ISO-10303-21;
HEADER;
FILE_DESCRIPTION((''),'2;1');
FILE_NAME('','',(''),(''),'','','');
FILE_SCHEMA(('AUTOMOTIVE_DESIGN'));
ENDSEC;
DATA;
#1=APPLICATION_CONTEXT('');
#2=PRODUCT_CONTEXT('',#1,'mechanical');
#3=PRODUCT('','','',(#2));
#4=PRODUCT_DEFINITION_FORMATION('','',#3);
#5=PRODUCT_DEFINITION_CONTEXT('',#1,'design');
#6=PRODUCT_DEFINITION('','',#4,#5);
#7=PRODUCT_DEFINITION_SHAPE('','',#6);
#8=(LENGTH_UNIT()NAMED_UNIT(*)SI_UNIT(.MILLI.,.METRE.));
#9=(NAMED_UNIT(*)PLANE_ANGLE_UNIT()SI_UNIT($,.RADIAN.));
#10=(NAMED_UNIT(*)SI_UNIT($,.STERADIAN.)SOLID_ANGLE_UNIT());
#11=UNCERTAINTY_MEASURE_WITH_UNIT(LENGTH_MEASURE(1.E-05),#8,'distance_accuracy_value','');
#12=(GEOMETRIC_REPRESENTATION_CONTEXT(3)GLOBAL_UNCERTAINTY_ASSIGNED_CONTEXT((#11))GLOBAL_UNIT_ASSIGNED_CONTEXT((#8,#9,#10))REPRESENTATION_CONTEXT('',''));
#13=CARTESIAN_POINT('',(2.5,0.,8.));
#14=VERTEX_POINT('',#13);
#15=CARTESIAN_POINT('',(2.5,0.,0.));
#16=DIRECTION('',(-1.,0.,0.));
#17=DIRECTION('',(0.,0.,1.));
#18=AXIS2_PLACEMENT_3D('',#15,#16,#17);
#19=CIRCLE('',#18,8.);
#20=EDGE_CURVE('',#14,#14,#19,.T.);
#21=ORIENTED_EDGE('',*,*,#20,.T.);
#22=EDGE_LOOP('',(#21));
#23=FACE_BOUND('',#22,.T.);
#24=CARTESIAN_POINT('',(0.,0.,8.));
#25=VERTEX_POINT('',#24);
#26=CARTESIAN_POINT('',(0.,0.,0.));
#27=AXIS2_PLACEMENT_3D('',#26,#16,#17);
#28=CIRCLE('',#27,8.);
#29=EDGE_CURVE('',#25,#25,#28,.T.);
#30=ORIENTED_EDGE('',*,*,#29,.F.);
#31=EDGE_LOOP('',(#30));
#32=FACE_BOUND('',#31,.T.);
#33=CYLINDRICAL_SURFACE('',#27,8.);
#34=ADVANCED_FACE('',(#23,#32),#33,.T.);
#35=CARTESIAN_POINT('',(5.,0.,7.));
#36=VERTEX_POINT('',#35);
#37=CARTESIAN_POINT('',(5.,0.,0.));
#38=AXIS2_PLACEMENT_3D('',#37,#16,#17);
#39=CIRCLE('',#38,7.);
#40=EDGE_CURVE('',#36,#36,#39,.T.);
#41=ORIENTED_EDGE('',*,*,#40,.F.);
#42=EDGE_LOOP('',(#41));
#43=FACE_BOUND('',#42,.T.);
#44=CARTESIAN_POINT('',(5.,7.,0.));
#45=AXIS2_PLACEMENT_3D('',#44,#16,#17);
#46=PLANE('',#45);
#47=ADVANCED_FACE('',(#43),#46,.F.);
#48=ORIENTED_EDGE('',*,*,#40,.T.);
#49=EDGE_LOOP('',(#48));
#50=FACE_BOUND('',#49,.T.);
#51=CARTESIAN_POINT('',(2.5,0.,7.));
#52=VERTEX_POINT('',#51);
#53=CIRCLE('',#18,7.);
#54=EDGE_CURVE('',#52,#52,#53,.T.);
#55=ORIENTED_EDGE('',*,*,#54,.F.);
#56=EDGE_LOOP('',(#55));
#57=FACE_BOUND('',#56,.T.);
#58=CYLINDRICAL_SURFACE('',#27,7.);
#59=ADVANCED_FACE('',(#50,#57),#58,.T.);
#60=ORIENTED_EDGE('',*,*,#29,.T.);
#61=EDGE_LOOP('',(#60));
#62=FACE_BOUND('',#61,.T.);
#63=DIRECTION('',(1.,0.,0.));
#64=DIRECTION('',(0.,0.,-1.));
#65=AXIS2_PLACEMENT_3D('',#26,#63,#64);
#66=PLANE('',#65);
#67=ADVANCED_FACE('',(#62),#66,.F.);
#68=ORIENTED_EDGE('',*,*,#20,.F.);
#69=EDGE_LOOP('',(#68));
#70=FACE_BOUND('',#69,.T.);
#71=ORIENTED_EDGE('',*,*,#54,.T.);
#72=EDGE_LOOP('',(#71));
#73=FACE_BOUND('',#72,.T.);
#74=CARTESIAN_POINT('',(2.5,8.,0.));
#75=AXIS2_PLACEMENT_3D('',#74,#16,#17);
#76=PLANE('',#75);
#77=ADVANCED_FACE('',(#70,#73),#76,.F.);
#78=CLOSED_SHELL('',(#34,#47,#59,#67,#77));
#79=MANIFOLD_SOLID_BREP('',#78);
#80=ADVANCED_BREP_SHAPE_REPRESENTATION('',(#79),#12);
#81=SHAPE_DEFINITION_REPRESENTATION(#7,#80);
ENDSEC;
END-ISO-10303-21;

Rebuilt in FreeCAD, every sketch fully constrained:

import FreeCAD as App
import Part
import Sketcher
Q = App.Units.Quantity


def add_polygon(sketch, points):
    """Adds a closed chain of lines whose ends are joined by coincident constraints."""
    first, n = sketch.GeometryCount, len(points)
    for a, b in zip(points, points[1:] + points[:1]):
        sketch.addGeometry(Part.LineSegment(App.Vector(*a, 0), App.Vector(*b, 0)), False)
    for i in range(n):
        sketch.addConstraint(Sketcher.Constraint("Coincident", first + i, 2, first + (i + 1) % n, 1))

doc = App.newDocument("Part")
body = doc.addObject("PartDesign::Body", "Body")

# Sketch on XY plane
sketch1 = body.newObject("Sketcher::SketchObject", "Sketch")
sketch1.AttachmentSupport = (doc.getObject("XY_Plane"), [""])
sketch1.MapMode = "FlatFace"
add_polygon(sketch1, [(0, 8), (0, 0), (5, 0), (5, 7), (2.5, 7), (2.5, 8)])  # lines 0-5
sketch1.addConstraint(Sketcher.Constraint("Vertical", 0))
sketch1.addConstraint(Sketcher.Constraint("Horizontal", 1))
sketch1.addConstraint(Sketcher.Constraint("Vertical", 2))
sketch1.addConstraint(Sketcher.Constraint("Horizontal", 3))
sketch1.addConstraint(Sketcher.Constraint("Vertical", 4))
sketch1.addConstraint(Sketcher.Constraint("Horizontal", 5))
sketch1.addConstraint(Sketcher.Constraint("Coincident", 0, 2, -1, 1))
sketch1.addConstraint(Sketcher.Constraint("Equal", 3, 5))
sketch1.addConstraint(Sketcher.Constraint("DistanceX", 1, 1, 1, 2, Q("5 mm")))
sketch1.addConstraint(Sketcher.Constraint("DistanceY", 0, 2, 0, 1, Q("8 mm")))
sketch1.addConstraint(Sketcher.Constraint("DistanceY", 2, 1, 2, 2, Q("7 mm")))
revolution = body.newObject("PartDesign::Revolution", "Revolution")
revolution.Profile = sketch1
revolution.ReferenceAxis = (sketch1, ["H_Axis"])
revolution.Angle = 360

doc.recompute()
